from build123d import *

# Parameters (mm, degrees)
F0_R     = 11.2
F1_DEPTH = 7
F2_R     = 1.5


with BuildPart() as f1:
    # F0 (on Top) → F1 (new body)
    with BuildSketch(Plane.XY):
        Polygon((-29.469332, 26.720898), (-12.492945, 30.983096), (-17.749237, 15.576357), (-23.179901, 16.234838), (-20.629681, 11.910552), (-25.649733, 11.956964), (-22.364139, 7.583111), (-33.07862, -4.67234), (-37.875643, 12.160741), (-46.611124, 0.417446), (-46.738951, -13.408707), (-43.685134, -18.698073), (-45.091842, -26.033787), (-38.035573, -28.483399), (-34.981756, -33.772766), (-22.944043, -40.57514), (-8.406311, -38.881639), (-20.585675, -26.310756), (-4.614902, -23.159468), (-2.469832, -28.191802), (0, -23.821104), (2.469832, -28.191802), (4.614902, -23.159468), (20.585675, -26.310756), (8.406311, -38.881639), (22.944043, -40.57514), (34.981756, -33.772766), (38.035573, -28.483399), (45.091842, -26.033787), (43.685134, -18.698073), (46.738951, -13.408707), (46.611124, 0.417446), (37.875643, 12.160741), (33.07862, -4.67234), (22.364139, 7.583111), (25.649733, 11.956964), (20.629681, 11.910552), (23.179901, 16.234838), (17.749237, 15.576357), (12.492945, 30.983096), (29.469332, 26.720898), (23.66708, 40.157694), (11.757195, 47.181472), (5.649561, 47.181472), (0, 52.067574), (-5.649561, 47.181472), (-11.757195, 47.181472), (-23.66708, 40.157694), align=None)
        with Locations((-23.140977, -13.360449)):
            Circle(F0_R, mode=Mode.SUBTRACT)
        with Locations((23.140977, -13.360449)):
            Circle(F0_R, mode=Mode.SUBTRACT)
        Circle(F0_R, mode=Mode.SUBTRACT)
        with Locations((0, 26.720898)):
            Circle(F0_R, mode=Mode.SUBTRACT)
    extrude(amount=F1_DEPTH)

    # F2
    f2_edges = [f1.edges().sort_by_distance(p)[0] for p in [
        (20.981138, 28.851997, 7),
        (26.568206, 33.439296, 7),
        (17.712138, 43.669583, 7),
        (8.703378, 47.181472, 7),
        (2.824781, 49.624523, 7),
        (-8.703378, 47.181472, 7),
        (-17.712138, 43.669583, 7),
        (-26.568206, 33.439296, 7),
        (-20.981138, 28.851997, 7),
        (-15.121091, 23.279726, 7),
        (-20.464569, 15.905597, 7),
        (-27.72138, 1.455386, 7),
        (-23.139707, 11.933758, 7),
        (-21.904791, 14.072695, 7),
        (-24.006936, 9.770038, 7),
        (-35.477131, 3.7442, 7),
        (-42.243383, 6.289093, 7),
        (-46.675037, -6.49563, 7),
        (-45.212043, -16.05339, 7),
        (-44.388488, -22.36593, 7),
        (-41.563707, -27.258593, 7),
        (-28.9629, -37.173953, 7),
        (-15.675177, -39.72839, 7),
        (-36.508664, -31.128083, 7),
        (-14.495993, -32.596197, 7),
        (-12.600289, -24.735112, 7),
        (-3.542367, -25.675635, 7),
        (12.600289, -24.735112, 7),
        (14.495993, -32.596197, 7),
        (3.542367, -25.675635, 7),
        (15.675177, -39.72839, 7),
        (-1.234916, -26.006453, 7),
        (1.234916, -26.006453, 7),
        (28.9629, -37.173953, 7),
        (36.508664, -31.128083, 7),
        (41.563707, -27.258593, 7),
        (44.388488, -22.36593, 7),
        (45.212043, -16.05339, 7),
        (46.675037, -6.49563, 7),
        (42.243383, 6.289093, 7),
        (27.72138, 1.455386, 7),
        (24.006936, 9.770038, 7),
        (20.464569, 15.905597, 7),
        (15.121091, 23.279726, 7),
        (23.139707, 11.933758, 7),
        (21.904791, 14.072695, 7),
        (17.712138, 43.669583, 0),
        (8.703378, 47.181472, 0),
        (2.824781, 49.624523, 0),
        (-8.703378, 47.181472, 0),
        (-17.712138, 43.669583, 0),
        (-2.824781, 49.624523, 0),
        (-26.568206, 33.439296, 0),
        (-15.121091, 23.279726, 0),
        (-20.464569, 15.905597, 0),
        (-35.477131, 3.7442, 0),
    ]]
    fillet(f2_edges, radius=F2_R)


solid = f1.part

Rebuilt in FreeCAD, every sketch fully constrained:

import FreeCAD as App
import Part
import Sketcher
from FreeCAD import Vector
Q = App.Units.Quantity


def edges_at(feature, points):
    """Names of the edges that pass closest to the given points."""
    edges = feature.Shape.Edges
    near = lambda p: min(range(len(edges)), key=lambda i: edges[i].distToShape(Part.Vertex(*p))[0])
    return sorted({f"Edge{near(p) + 1}" for p in points})


def add_polygon(sketch, points):
    """Adds a closed chain of lines whose ends are joined by coincident constraints."""
    first, n = sketch.GeometryCount, len(points)
    for a, b in zip(points, points[1:] + points[:1]):
        sketch.addGeometry(Part.LineSegment(App.Vector(*a, 0), App.Vector(*b, 0)), False)
    for i in range(n):
        sketch.addConstraint(Sketcher.Constraint("Coincident", first + i, 2, first + (i + 1) % n, 1))

doc = App.newDocument("Part")
body = doc.addObject("PartDesign::Body", "Body")

# Sketch on XY plane
sketch1 = doc.addObject("Sketcher::SketchObject", "Sketch")
body.addObject(sketch1)
sketch1.AttachmentSupport = (doc.XY_Plane, [""])
sketch1.MapMode = "FlatFace"
add_polygon(sketch1, [(-29.469332, 26.720898), (-12.492945, 30.983096), (-17.749237, 15.576357), (-23.179901, 16.234838), (-20.629681, 11.910552), (-25.649733, 11.956964), (-22.364139, 7.583111), (-33.07862, -4.67234), (-37.875643, 12.160741), (-46.611124, 0.417446), (-46.738951, -13.408707), (-43.685134, -18.698073), (-45.091842, -26.033787), (-38.035573, -28.483399), (-34.981756, -33.772766), (-22.944043, -40.57514), (-8.406311, -38.881639), (-20.585675, -26.310756), (-4.614902, -23.159468), (-2.469832, -28.191802), (0, -23.821104), (2.469832, -28.191802), (4.614902, -23.159468), (20.585675, -26.310756), (8.406311, -38.881639), (22.944043, -40.57514), (34.981756, -33.772766), (38.035573, -28.483399), (45.091842, -26.033787), (43.685134, -18.698073), (46.738951, -13.408707), (46.611124, 0.417446), (37.875643, 12.160741), (33.07862, -4.67234), (22.364139, 7.583111), (25.649733, 11.956964), (20.629681, 11.910552), (23.179901, 16.234838), (17.749237, 15.576357), (12.492945, 30.983096), (29.469332, 26.720898), (23.66708, 40.157694), (11.757195, 47.181472), (5.649561, 47.181472), (0, 52.067574), (-5.649561, 47.181472), (-11.757195, 47.181472), (-23.66708, 40.157694)])  # lines 0-47
sketch1.addGeometry(Part.Circle(Vector(-23.140977, -13.360449, 0), Vector(0, 0, 1), 11.2), False)  # 48
sketch1.addGeometry(Part.Circle(Vector(23.140977, -13.360449, 0), Vector(0, 0, 1), 11.2), False)  # 49
sketch1.addGeometry(Part.Circle(Vector(0, 0, 0), Vector(0, 0, 1), 11.2), False)  # 50
sketch1.addGeometry(Part.Circle(Vector(0, 26.720898, 0), Vector(0, 0, 1), 11.2), False)  # 51
sketch1.addConstraint(Sketcher.Constraint("Horizontal", 42))
sketch1.addConstraint(Sketcher.Constraint("Horizontal", 45))
sketch1.addConstraint(Sketcher.Constraint("Coincident", 50, 3, -1, 1))
sketch1.addConstraint(Sketcher.Constraint("Equal", 48, 49))
sketch1.addConstraint(Sketcher.Constraint("Equal", 49, 50))
sketch1.addConstraint(Sketcher.Constraint("Equal", 50, 51))
sketch1.addConstraint(Sketcher.Constraint("Symmetric", 48, 3, 49, 3, -2))
sketch1.addConstraint(Sketcher.Constraint("Symmetric", 18, 2, 20, 2, -2))
sketch1.addConstraint(Sketcher.Constraint("Symmetric", 17, 2, 21, 2, -2))
sketch1.addConstraint(Sketcher.Constraint("Symmetric", 16, 2, 22, 2, -2))
sketch1.addConstraint(Sketcher.Constraint("Symmetric", 15, 2, 23, 2, -2))
sketch1.addConstraint(Sketcher.Constraint("Symmetric", 14, 2, 24, 2, -2))
sketch1.addConstraint(Sketcher.Constraint("Symmetric", 13, 2, 25, 2, -2))
sketch1.addConstraint(Sketcher.Constraint("Symmetric", 12, 2, 26, 2, -2))
sketch1.addConstraint(Sketcher.Constraint("Symmetric", 11, 2, 27, 2, -2))
sketch1.addConstraint(Sketcher.Constraint("Symmetric", 10, 2, 28, 2, -2))
sketch1.addConstraint(Sketcher.Constraint("Symmetric", 9, 2, 29, 2, -2))
sketch1.addConstraint(Sketcher.Constraint("Symmetric", 8, 2, 30, 2, -2))
sketch1.addConstraint(Sketcher.Constraint("Symmetric", 7, 2, 31, 2, -2))
sketch1.addConstraint(Sketcher.Constraint("Symmetric", 6, 2, 32, 2, -2))
sketch1.addConstraint(Sketcher.Constraint("Symmetric", 5, 2, 33, 2, -2))
sketch1.addConstraint(Sketcher.Constraint("Symmetric", 4, 2, 34, 2, -2))
sketch1.addConstraint(Sketcher.Constraint("Symmetric", 3, 2, 35, 2, -2))
sketch1.addConstraint(Sketcher.Constraint("Symmetric", 2, 2, 36, 2, -2))
sketch1.addConstraint(Sketcher.Constraint("Symmetric", 1, 2, 37, 2, -2))
sketch1.addConstraint(Sketcher.Constraint("Symmetric", 0, 2, 38, 2, -2))
sketch1.addConstraint(Sketcher.Constraint("Symmetric", 42, 2, 44, 2, -2))
sketch1.addConstraint(Sketcher.Constraint("Symmetric", 40, 2, 46, 2, -2))
sketch1.addConstraint(Sketcher.Constraint("Symmetric", 39, 2, 47, 2, -2))
sketch1.addConstraint(Sketcher.Constraint("PointOnObject", 51, 3, -2))
sketch1.addConstraint(Sketcher.Constraint("PointOnObject", 19, 2, -2))
sketch1.addConstraint(Sketcher.Constraint("PointOnObject", 43, 2, -2))
sketch1.addConstraint(Sketcher.Constraint("Perpendicular", 4, 9))
sketch1.addConstraint(Sketcher.Constraint("Parallel", 10, 13))
sketch1.addConstraint(Sketcher.Constraint("Perpendicular", 14, 19))
sketch1.addConstraint(Sketcher.Constraint("Perpendicular", 36, 41))
sketch1.addConstraint(Sketcher.Constraint("Perpendicular", 3, 46))
sketch1.addConstraint(Sketcher.Constraint("Horizontal", 51, 3, 39, 2))
sketch1.addConstraint(Sketcher.Constraint("Equal", 3, 4))
sketch1.addConstraint(Sketcher.Constraint("Equal", 2, 5))
sketch1.addConstraint(Sketcher.Constraint("Equal", 1, 6))
sketch1.addConstraint(Sketcher.Constraint("Equal", 0, 7))
sketch1.addConstraint(Sketcher.Constraint("Equal", 11, 12))
sketch1.addConstraint(Sketcher.Constraint("Equal", 10, 13))
sketch1.addConstraint(Sketcher.Constraint("Equal", 9, 14))
sketch1.addConstraint(Sketcher.Constraint("Equal", 8, 15))
sketch1.addConstraint(Sketcher.Constraint("Equal", 7, 16))
sketch1.addConstraint(Sketcher.Constraint("Equal", 6, 17))
sketch1.addConstraint(Sketcher.Constraint("Equal", 5, 18))
sketch1.addConstraint(Sketcher.Constraint("Equal", 4, 19))
sketch1.addConstraint(Sketcher.Constraint("Equal", 31, 40))
sketch1.addConstraint(Sketcher.Constraint("Equal", 30, 41))
sketch1.addConstraint(Sketcher.Constraint("Equal", 28, 43))
sketch1.addConstraint(Sketcher.Constraint("Diameter", 48, 22.4))
sketch1.addConstraint(Sketcher.Constraint("Angle", 10, Q("-59.999999 deg")))
sketch1.addConstraint(Sketcher.Constraint("DistanceX", 2, 2, -1, 1, 23.179901))
sketch1.addConstraint(Sketcher.Constraint("DistanceY", 12, 2, -1, 1, 28.483399))
sketch1.addConstraint(Sketcher.Constraint("DistanceY", 18, 2, -1, 1, 28.191802))
sketch1.addConstraint(Sketcher.Constraint("DistanceY", 51, 3, 0, 2, 4.262198))
sketch1.addConstraint(Sketcher.Constraint("DistanceX", 11, 2, 14, 2, 22.147799))
sketch1.addConstraint(Sketcher.Constraint("DistanceY", 14, 2, 15, 2, 1.693501))
sketch1.addConstraint(Sketcher.Constraint("DistanceX", 12, 2, 16, 2, 17.449898))
sketch1.addConstraint(Sketcher.Constraint("DistanceY", 18, 2, 19, 2, 4.370698))
sketch1.addConstraint(Sketcher.Constraint("DistanceX", 31, 2, 27, 2, 7.216199))
sketch1.addConstraint(Sketcher.Constraint("DistanceX", 34, 2, 39, 2, 3.819599))
sketch1.addConstraint(Sketcher.Constraint("Distance", 0, 17.503258))
sketch1.addConstraint(Sketcher.Constraint("Distance", 2, 5.47044))
sketch1.addConstraint(Sketcher.Constraint("Distance", 40, 14.636038))
sketch1.addConstraint(Sketcher.Constraint("DistanceX", 42, 2, 42, 1, 6.107634))
sketch1.addConstraint(Sketcher.Constraint("DistanceY", 48, 3, -1, 1, 13.360449))
sketch1.addConstraint(Sketcher.Constraint("DistanceY", -1, 1, 2, 2, 16.234838))
sketch1.addConstraint(Sketcher.Constraint("DistanceX", 3, 2, -1, 1, 20.629681))
sketch1.addConstraint(Sketcher.Constraint("DistanceY", -1, 1, 3, 2, 11.910552))
sketch1.addConstraint(Sketcher.Constraint("DistanceX", 5, 2, -1, 1, 22.364139))
sketch1.addConstraint(Sketcher.Constraint("DistanceY", -1, 1, 5, 2, 7.583111))
sketch1.addConstraint(Sketcher.Constraint("DistanceX", 6, 2, -1, 1, 33.07862))
sketch1.addConstraint(Sketcher.Constraint("DistanceY", 6, 2, -1, 1, 4.67234))
sketch1.addConstraint(Sketcher.Constraint("DistanceY", -1, 1, 7, 2, 12.160741))
sketch1.addConstraint(Sketcher.Constraint("DistanceX", 9, 2, -1, 1, 46.738951))
sketch1.addConstraint(Sketcher.Constraint("DistanceY", 14, 2, -1, 1, 40.57514))
sketch1.addConstraint(Sketcher.Constraint("DistanceY", 17, 2, -1, 1, 23.159468))
sketch1.addConstraint(Sketcher.Constraint("DistanceX", -1, 1, 40, 2, 23.66708))
sketch1.addConstraint(Sketcher.Constraint("DistanceX", 48, 3, 0, 2, 10.648032))
sketch1.addConstraint(Sketcher.Constraint("DistanceY", 1, 2, 0, 2, 15.406739))
pad1 = doc.addObject("PartDesign::Pad", "Pad")
body.addObject(pad1)
pad1.Profile = sketch1
pad1.Length = 7
doc.recompute()

fillet = doc.addObject("PartDesign::Fillet", "Fillet")
body.addObject(fillet)
fillet.Base = (pad1, edges_at(pad1, [
    (20.981, 28.852, 7),
    (26.568, 33.439, 7),
    (17.712, 43.67, 7),
    (8.703, 47.181, 7),
    (2.825, 49.625, 7),
    (-8.703, 47.181, 7),
    (-17.712, 43.67, 7),
    (-26.568, 33.439, 7),
    (-20.981, 28.852, 7),
    (-15.121, 23.28, 7),
    (-20.465, 15.906, 7),
    (-27.721, 1.455, 7),
    (-23.14, 11.934, 7),
    (-21.905, 14.073, 7),
    (-24.007, 9.77, 7),
    (-35.477, 3.744, 7),
    (-42.243, 6.289, 7),
    (-46.675, -6.496, 7),
    (-45.212, -16.053, 7),
    (-44.388, -22.366, 7),
    (-41.564, -27.259, 7),
    (-28.963, -37.174, 7),
    (-15.675, -39.728, 7),
    (-36.509, -31.128, 7),
    (-14.496, -32.596, 7),
    (-12.6, -24.735, 7),
    (-3.542, -25.676, 7),
    (12.6, -24.735, 7),
    (14.496, -32.596, 7),
    (3.542, -25.676, 7),
    (15.675, -39.728, 7),
    (-1.235, -26.006, 7),
    (1.235, -26.006, 7),
    (28.963, -37.174, 7),
    (36.509, -31.128, 7),
    (41.564, -27.259, 7),
    (44.388, -22.366, 7),
    (45.212, -16.053, 7),
    (46.675, -6.496, 7),
    (42.243, 6.289, 7),
    (27.721, 1.455, 7),
    (24.007, 9.77, 7),
    (20.465, 15.906, 7),
    (15.121, 23.28, 7),
    (23.14, 11.934, 7),
    (21.905, 14.073, 7),
    (17.712, 43.67, 0),
    (8.703, 47.181, 0),
    (2.825, 49.625, 0),
    (-8.703, 47.181, 0),
    (-17.712, 43.67, 0),
    (-2.825, 49.625, 0),
    (-26.568, 33.439, 0),
    (-15.121, 23.28, 0),
    (-20.465, 15.906, 0),
    (-35.477, 3.744, 0),
]))
fillet.Radius = 1.5

doc.recompute()
